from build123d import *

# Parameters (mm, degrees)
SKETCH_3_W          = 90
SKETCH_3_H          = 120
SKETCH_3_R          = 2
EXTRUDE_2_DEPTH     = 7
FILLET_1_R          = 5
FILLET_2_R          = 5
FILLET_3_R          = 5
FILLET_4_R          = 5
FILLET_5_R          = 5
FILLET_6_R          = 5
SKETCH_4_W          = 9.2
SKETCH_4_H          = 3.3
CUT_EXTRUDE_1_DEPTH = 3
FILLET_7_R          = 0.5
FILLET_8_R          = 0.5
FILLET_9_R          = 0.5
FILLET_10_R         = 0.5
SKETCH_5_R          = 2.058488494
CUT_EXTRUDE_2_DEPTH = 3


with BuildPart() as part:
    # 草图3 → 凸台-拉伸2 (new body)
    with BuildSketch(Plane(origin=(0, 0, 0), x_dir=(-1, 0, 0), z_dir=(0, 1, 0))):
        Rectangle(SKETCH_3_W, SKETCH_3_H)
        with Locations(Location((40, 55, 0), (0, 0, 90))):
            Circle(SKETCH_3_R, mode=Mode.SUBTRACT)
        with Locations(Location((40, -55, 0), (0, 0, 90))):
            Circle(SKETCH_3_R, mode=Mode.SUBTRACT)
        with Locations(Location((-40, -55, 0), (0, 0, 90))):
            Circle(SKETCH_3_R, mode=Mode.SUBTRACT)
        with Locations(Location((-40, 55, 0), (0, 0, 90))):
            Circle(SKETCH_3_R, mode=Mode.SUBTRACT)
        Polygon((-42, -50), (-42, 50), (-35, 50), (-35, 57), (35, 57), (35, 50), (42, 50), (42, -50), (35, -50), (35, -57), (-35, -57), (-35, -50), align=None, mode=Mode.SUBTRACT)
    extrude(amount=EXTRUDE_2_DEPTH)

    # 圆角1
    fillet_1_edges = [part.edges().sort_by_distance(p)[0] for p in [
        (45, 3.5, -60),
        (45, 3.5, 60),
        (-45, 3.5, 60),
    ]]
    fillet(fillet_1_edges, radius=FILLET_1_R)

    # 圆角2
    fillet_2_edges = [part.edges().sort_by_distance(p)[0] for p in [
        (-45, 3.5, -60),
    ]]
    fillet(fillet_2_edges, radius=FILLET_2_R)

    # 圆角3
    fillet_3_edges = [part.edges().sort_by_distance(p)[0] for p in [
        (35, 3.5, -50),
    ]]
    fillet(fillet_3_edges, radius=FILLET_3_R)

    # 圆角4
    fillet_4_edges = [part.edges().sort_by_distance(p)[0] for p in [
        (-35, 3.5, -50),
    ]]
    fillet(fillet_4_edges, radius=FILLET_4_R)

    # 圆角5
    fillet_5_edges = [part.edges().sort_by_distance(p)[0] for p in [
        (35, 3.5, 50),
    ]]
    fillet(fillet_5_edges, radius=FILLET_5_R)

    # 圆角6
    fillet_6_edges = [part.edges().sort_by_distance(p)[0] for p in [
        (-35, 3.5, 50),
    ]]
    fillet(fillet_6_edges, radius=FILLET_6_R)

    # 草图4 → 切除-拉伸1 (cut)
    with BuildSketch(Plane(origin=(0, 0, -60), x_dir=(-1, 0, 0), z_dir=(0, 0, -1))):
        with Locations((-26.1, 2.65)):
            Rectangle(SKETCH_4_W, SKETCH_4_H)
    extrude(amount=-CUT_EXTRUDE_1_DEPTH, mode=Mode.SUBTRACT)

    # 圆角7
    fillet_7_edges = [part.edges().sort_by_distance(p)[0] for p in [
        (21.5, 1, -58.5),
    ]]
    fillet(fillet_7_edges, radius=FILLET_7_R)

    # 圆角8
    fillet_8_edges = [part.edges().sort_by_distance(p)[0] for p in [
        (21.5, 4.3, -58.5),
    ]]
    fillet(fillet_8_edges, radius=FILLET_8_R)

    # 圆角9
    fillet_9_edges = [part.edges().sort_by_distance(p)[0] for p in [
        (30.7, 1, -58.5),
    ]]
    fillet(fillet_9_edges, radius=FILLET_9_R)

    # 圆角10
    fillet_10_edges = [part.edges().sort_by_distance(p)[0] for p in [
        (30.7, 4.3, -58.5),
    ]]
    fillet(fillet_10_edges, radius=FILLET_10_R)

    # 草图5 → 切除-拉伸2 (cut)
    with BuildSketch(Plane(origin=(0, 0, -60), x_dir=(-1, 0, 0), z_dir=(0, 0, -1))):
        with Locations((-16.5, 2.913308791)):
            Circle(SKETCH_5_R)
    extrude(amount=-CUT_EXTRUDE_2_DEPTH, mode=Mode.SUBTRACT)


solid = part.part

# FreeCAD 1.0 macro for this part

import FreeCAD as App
import Part
import Sketcher


def edges_at(feature, points):
    """Names of the edges that pass closest to the given points."""
    edges = feature.Shape.Edges
    near = lambda p: min(range(len(edges)), key=lambda i: edges[i].distToShape(Part.Vertex(*p))[0])
    return sorted({f"Edge{near(p) + 1}" for p in points})

doc = App.newDocument("Part")
body = doc.addObject("PartDesign::Body", "Body")

sketch1 = body.newObject("Sketcher::SketchObject", "Sketch")
sketch1.AttachmentSupport = (doc.getObject("XZ_Plane"), [""])
sketch1.MapMode = "FlatFace"
sketch1.addGeometry(Part.LineSegment(App.Vector(45, 60, 0), App.Vector(45, -60, 0)), False)
sketch1.addGeometry(Part.LineSegment(App.Vector(45, -60, 0), App.Vector(-45, -60, 0)), False)
sketch1.addGeometry(Part.LineSegment(App.Vector(-45, -60, 0), App.Vector(-45, 60, 0)), False)
sketch1.addGeometry(Part.LineSegment(App.Vector(-45, 60, 0), App.Vector(45, 60, 0)), False)
sketch1.addGeometry(Part.Circle(App.Vector(40, -55, 0), App.Vector(0, 0, 1), 2), False)
sketch1.addGeometry(Part.Circle(App.Vector(-40, -55, 0), App.Vector(0, 0, 1), 2), False)
sketch1.addGeometry(Part.Circle(App.Vector(40, 55, 0), App.Vector(0, 0, 1), 2), False)
sketch1.addGeometry(Part.LineSegment(App.Vector(35, -50, 0), App.Vector(42, -50, 0)), False)
sketch1.addGeometry(Part.LineSegment(App.Vector(42, -50, 0), App.Vector(42, 50, 0)), False)
sketch1.addGeometry(Part.LineSegment(App.Vector(42, 50, 0), App.Vector(35, 50, 0)), False)
sketch1.addGeometry(Part.LineSegment(App.Vector(35, 50, 0), App.Vector(35, 57, 0)), False)
sketch1.addGeometry(Part.LineSegment(App.Vector(35, 57, 0), App.Vector(-35, 57, 0)), False)
sketch1.addGeometry(Part.LineSegment(App.Vector(-35, 57, 0), App.Vector(-35, 50, 0)), False)
sketch1.addGeometry(Part.LineSegment(App.Vector(-35, 50, 0), App.Vector(-42, 50, 0)), False)
sketch1.addGeometry(Part.LineSegment(App.Vector(-42, 50, 0), App.Vector(-42, -50, 0)), False)
sketch1.addGeometry(Part.LineSegment(App.Vector(-42, -50, 0), App.Vector(-35, -50, 0)), False)
sketch1.addGeometry(Part.LineSegment(App.Vector(-35, -50, 0), App.Vector(-35, -57, 0)), False)
sketch1.addGeometry(Part.LineSegment(App.Vector(-35, -57, 0), App.Vector(35, -57, 0)), False)
sketch1.addGeometry(Part.LineSegment(App.Vector(35, -57, 0), App.Vector(35, -50, 0)), False)
sketch1.addGeometry(Part.Circle(App.Vector(-40, 55, 0), App.Vector(0, 0, 1), 2), False)
sketch1.addConstraint(Sketcher.Constraint("Coincident", 0, 2, 1, 1))
sketch1.addConstraint(Sketcher.Constraint("Coincident", 1, 2, 2, 1))
sketch1.addConstraint(Sketcher.Constraint("Coincident", 2, 2, 3, 1))
sketch1.addConstraint(Sketcher.Constraint("Coincident", 3, 2, 0, 1))
sketch1.addConstraint(Sketcher.Constraint("Coincident", 7, 2, 8, 1))
sketch1.addConstraint(Sketcher.Constraint("Coincident", 8, 2, 9, 1))
sketch1.addConstraint(Sketcher.Constraint("Coincident", 9, 2, 10, 1))
sketch1.addConstraint(Sketcher.Constraint("Coincident", 10, 2, 11, 1))
sketch1.addConstraint(Sketcher.Constraint("Coincident", 11, 2, 12, 1))
sketch1.addConstraint(Sketcher.Constraint("Coincident", 12, 2, 13, 1))
sketch1.addConstraint(Sketcher.Constraint("Coincident", 13, 2, 14, 1))
sketch1.addConstraint(Sketcher.Constraint("Coincident", 14, 2, 15, 1))
sketch1.addConstraint(Sketcher.Constraint("Coincident", 15, 2, 16, 1))
sketch1.addConstraint(Sketcher.Constraint("Coincident", 16, 2, 17, 1))
sketch1.addConstraint(Sketcher.Constraint("Coincident", 17, 2, 18, 1))
sketch1.addConstraint(Sketcher.Constraint("Coincident", 18, 2, 7, 1))
sketch1.addConstraint(Sketcher.Constraint("Vertical", 0))
sketch1.addConstraint(Sketcher.Constraint("Horizontal", 1))
sketch1.addConstraint(Sketcher.Constraint("Vertical", 2))
sketch1.addConstraint(Sketcher.Constraint("Horizontal", 3))
sketch1.addConstraint(Sketcher.Constraint("Horizontal", 7))
sketch1.addConstraint(Sketcher.Constraint("Vertical", 8))
sketch1.addConstraint(Sketcher.Constraint("Horizontal", 9))
sketch1.addConstraint(Sketcher.Constraint("Vertical", 10))
sketch1.addConstraint(Sketcher.Constraint("Horizontal", 11))
sketch1.addConstraint(Sketcher.Constraint("Vertical", 12))
sketch1.addConstraint(Sketcher.Constraint("Horizontal", 13))
sketch1.addConstraint(Sketcher.Constraint("Vertical", 14))
sketch1.addConstraint(Sketcher.Constraint("Horizontal", 15))
sketch1.addConstraint(Sketcher.Constraint("Vertical", 16))
sketch1.addConstraint(Sketcher.Constraint("Horizontal", 17))
sketch1.addConstraint(Sketcher.Constraint("Vertical", 18))
sketch1.addConstraint(Sketcher.Constraint("Equal", 4, 5))
sketch1.addConstraint(Sketcher.Constraint("Equal", 5, 6))
sketch1.addConstraint(Sketcher.Constraint("Equal", 6, 19))
sketch1.addConstraint(Sketcher.Constraint("Symmetric", 5, 3, 6, 3, -1, 1))
sketch1.addConstraint(Sketcher.Constraint("Symmetric", 4, 3, 19, 3, -1, 1))
sketch1.addConstraint(Sketcher.Constraint("Symmetric", 0, 2, 2, 2, -1, 1))
sketch1.addConstraint(Sketcher.Constraint("Symmetric", 7, 2, 13, 2, -1, 1))
sketch1.addConstraint(Sketcher.Constraint("Symmetric", 9, 2, 15, 2, -1, 1))
sketch1.addConstraint(Sketcher.Constraint("Symmetric", 11, 2, 17, 2, -1, 1))
sketch1.addConstraint(Sketcher.Constraint("Symmetric", 4, 3, 5, 3, -2))
sketch1.addConstraint(Sketcher.Constraint("Symmetric", 9, 2, 12, 2, -2))
sketch1.addConstraint(Sketcher.Constraint("Equal", 15, 10))
sketch1.addConstraint(Sketcher.Constraint("Diameter", 4, 4.0))
sketch1.addConstraint(Sketcher.Constraint("DistanceX", 1, 2, 1, 1, 90.0))
sketch1.addConstraint(Sketcher.Constraint("DistanceX", 7, 1, 7, 2, 7.0))
sketch1.addConstraint(Sketcher.Constraint("DistanceX", 11, 2, 11, 1, 70.0))
sketch1.addConstraint(Sketcher.Constraint("DistanceY", 0, 2, 0, 1, 120.0))
sketch1.addConstraint(Sketcher.Constraint("DistanceY", 8, 1, 8, 2, 100.0))
sketch1.addConstraint(Sketcher.Constraint("DistanceX", -1, 1, 4, 3, 40.0))
sketch1.addConstraint(Sketcher.Constraint("DistanceY", 4, 3, -1, 1, 55.0))
pad1 = body.newObject("PartDesign::Pad", "Pad")
pad1.Profile = sketch1
pad1.Length = 7
pad1.Reversed = True
doc.recompute()

fillet = body.newObject("PartDesign::Fillet", "Fillet")
fillet.Base = (pad1, edges_at(pad1, [(45, 3.5, -60), (45, 3.5, 60), (-45, 3.5, 60)]))
fillet.Radius = 5
doc.recompute()

fillet2 = body.newObject("PartDesign::Fillet", "Fillet001")
fillet2.Base = (fillet, edges_at(fillet, [(-45, 3.5, -60)]))
fillet2.Radius = 5
doc.recompute()

fillet3 = body.newObject("PartDesign::Fillet", "Fillet002")
fillet3.Base = (fillet2, edges_at(fillet2, [(35, 3.5, -50)]))
fillet3.Radius = 5
doc.recompute()

fillet4 = body.newObject("PartDesign::Fillet", "Fillet003")
fillet4.Base = (fillet3, edges_at(fillet3, [(-35, 3.5, -50)]))
fillet4.Radius = 5
doc.recompute()

fillet5 = body.newObject("PartDesign::Fillet", "Fillet004")
fillet5.Base = (fillet4, edges_at(fillet4, [(35, 3.5, 50)]))
fillet5.Radius = 5
doc.recompute()

fillet6 = body.newObject("PartDesign::Fillet", "Fillet005")
fillet6.Base = (fillet5, edges_at(fillet5, [(-35, 3.5, 50)]))
fillet6.Radius = 5

sketch2 = body.newObject("Sketcher::SketchObject", "Sketch001")
sketch2.AttachmentSupport = (doc.getObject("XY_Plane"), [""])
sketch2.MapMode = "FlatFace"
sketch2.AttachmentOffset = App.Placement(App.Vector(0, 0, -60), App.Rotation())
sketch2.addGeometry(Part.LineSegment(App.Vector(30.7, 4.3, 0), App.Vector(30.7, 1, 0)), False)
sketch2.addGeometry(Part.LineSegment(App.Vector(30.7, 1, 0), App.Vector(21.5, 1, 0)), False)
sketch2.addGeometry(Part.LineSegment(App.Vector(21.5, 1, 0), App.Vector(21.5, 4.3, 0)), False)
sketch2.addGeometry(Part.LineSegment(App.Vector(21.5, 4.3, 0), App.Vector(30.7, 4.3, 0)), False)
sketch2.addConstraint(Sketcher.Constraint("Coincident", 0, 2, 1, 1))
sketch2.addConstraint(Sketcher.Constraint("Coincident", 1, 2, 2, 1))
sketch2.addConstraint(Sketcher.Constraint("Coincident", 2, 2, 3, 1))
sketch2.addConstraint(Sketcher.Constraint("Coincident", 3, 2, 0, 1))
sketch2.addConstraint(Sketcher.Constraint("Vertical", 0))
sketch2.addConstraint(Sketcher.Constraint("Horizontal", 1))
sketch2.addConstraint(Sketcher.Constraint("Vertical", 2))
sketch2.addConstraint(Sketcher.Constraint("Horizontal", 3))
sketch2.addConstraint(Sketcher.Constraint("DistanceX", 1, 2, 1, 1, 9.2))
sketch2.addConstraint(Sketcher.Constraint("DistanceY", 0, 2, 0, 1, 3.3))
sketch2.addConstraint(Sketcher.Constraint("DistanceY", -1, 1, 0, 2, 1.0))
sketch2.addConstraint(Sketcher.Constraint("DistanceX", -1, 1, 0, 2, 30.7))
pocket1 = body.newObject("PartDesign::Pocket", "Pocket")
pocket1.Profile = sketch2
pocket1.Length = 3
pocket1.Reversed = True
doc.recompute()

fillet7 = body.newObject("PartDesign::Fillet", "Fillet006")
fillet7.Base = (pocket1, edges_at(pocket1, [(21.5, 1, -58.5)]))
fillet7.Radius = 0.5
doc.recompute()

fillet8 = body.newObject("PartDesign::Fillet", "Fillet007")
fillet8.Base = (fillet7, edges_at(fillet7, [(21.5, 4.3, -58.5)]))
fillet8.Radius = 0.5
doc.recompute()

fillet9 = body.newObject("PartDesign::Fillet", "Fillet008")
fillet9.Base = (fillet8, edges_at(fillet8, [(30.7, 1, -58.5)]))
fillet9.Radius = 0.5
doc.recompute()

fillet10 = body.newObject("PartDesign::Fillet", "Fillet009")
fillet10.Base = (fillet9, edges_at(fillet9, [(30.7, 4.3, -58.5)]))
fillet10.Radius = 0.5

sketch3 = body.newObject("Sketcher::SketchObject", "Sketch002")
sketch3.AttachmentSupport = (doc.getObject("XY_Plane"), [""])
sketch3.MapMode = "FlatFace"
sketch3.AttachmentOffset = App.Placement(App.Vector(0, 0, -60), App.Rotation())
sketch3.addGeometry(Part.Circle(App.Vector(16.5, 2.9, 0), App.Vector(0, 0, 1), 2.1), False)
sketch3.addConstraint(Sketcher.Constraint("DistanceX", -1, 1, 0, 3, 16.5))
sketch3.addConstraint(Sketcher.Constraint("Diameter", 0, 4.116977))
sketch3.addConstraint(Sketcher.Constraint("DistanceY", -1, 1, 0, 3, 2.913309))
pocket2 = body.newObject("PartDesign::Pocket", "Pocket001")
pocket2.Profile = sketch3
pocket2.Length = 3
pocket2.Reversed = True

doc.recompute()
